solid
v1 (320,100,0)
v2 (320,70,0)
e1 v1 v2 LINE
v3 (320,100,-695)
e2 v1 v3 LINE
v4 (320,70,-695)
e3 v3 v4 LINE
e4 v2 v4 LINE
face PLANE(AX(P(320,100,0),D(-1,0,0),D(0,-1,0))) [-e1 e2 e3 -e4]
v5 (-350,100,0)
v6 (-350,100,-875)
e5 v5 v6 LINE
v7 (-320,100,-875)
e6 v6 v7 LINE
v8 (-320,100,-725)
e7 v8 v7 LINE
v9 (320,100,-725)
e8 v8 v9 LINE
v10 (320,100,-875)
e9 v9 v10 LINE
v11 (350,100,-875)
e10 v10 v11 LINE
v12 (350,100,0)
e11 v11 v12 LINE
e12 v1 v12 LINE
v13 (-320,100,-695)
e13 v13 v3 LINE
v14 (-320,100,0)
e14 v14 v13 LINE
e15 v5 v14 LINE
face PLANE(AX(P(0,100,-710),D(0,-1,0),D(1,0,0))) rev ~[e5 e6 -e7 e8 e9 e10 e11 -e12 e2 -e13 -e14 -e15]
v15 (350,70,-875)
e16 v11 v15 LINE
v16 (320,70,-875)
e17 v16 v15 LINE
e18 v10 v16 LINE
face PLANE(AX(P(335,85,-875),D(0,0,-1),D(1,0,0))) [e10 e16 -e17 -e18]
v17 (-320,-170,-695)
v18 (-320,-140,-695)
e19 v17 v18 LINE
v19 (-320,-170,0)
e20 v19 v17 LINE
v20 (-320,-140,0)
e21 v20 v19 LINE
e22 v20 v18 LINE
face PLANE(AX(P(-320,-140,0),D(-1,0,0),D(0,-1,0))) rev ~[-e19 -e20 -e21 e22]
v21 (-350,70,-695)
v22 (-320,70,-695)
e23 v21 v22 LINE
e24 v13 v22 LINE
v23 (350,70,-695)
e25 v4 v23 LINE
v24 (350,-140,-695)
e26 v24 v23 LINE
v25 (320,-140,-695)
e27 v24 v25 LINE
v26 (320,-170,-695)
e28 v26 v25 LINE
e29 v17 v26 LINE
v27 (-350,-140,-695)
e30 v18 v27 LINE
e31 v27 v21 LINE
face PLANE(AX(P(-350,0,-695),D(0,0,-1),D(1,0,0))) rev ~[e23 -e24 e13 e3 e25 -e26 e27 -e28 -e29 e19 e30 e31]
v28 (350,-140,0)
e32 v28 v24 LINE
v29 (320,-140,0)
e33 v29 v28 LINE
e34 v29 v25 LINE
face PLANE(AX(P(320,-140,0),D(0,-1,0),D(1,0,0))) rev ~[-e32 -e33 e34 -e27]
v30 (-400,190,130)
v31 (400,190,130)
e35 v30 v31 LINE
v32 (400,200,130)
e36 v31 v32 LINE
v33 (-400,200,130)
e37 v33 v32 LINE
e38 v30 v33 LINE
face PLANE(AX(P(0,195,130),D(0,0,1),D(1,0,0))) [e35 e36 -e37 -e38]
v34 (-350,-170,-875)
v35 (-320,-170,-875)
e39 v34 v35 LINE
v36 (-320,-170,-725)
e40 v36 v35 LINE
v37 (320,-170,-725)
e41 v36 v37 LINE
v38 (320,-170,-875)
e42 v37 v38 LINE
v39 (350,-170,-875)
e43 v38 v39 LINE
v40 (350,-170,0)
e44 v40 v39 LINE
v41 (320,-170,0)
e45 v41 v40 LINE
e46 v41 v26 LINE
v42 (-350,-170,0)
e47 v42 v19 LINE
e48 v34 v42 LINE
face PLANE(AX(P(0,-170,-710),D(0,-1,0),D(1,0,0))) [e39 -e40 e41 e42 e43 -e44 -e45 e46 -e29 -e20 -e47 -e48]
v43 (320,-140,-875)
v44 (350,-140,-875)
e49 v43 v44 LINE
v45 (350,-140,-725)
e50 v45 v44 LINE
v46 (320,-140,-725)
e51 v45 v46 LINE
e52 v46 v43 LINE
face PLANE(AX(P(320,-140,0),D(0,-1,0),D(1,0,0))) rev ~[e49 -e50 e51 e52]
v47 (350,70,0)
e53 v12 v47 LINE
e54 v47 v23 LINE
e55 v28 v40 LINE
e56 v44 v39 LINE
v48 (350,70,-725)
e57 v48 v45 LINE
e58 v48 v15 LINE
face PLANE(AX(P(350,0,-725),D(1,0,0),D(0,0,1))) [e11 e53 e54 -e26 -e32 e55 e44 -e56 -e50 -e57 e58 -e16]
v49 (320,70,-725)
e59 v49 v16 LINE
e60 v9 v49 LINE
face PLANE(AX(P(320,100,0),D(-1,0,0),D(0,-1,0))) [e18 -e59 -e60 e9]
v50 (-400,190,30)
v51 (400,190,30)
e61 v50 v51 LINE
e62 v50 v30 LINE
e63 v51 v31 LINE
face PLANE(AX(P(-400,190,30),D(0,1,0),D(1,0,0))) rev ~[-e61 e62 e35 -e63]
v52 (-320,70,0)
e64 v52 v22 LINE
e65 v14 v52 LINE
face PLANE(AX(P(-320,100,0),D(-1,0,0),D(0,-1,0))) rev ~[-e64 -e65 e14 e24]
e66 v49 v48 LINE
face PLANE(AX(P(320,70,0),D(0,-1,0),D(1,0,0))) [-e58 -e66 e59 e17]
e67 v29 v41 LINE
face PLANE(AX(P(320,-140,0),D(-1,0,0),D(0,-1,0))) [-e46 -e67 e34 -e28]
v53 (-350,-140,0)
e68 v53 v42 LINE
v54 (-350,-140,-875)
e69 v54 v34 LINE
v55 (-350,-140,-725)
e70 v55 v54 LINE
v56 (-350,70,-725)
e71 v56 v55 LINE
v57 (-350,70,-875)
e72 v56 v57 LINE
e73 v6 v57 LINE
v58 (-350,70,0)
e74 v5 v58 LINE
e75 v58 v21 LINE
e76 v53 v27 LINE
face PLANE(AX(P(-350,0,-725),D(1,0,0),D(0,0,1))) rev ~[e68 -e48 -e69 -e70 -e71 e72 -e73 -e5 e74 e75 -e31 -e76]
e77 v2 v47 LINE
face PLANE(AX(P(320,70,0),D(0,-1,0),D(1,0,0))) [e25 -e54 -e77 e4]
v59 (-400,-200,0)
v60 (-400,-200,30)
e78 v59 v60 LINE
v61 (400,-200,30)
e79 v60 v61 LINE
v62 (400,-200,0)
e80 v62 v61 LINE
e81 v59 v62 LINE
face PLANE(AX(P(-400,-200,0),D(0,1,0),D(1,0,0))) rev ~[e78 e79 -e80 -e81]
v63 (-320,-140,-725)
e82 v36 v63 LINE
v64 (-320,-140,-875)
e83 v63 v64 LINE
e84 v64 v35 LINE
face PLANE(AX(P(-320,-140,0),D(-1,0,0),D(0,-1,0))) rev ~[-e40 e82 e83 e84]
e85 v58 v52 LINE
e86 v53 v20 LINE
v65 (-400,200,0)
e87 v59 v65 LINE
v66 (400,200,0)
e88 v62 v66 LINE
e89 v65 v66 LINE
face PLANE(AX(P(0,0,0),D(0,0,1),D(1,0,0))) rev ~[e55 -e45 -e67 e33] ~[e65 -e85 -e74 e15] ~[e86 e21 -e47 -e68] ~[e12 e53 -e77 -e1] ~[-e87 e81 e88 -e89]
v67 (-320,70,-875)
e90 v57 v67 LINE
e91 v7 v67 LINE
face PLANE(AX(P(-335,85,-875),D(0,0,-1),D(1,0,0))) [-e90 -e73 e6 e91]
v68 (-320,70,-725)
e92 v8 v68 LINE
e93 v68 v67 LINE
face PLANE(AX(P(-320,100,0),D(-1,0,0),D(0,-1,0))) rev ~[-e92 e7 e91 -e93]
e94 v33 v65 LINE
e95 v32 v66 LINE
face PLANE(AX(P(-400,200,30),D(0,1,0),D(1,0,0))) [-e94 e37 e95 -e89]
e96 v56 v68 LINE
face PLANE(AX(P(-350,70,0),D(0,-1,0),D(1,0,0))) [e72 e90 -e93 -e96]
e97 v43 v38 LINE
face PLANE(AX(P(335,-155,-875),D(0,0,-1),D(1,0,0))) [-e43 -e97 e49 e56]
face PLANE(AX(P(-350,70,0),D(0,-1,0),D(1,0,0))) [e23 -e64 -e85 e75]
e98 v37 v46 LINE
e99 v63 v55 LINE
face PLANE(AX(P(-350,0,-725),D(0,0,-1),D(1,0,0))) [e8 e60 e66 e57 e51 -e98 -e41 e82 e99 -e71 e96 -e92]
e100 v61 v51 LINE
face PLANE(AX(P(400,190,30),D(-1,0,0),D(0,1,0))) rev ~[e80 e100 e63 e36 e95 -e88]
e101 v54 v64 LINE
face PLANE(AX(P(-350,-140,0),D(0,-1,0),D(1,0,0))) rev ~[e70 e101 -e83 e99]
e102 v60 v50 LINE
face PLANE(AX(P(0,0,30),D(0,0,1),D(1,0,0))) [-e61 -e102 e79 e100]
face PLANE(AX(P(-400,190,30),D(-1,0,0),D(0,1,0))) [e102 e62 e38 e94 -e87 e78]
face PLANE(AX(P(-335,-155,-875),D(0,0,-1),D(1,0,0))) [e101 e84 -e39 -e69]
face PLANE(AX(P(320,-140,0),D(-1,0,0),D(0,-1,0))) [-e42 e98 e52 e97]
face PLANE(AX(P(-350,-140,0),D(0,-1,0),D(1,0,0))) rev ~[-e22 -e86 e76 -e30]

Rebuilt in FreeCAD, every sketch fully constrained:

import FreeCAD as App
import Part
import Sketcher

doc = App.newDocument("Part")
params = doc.addObject("Spreadsheet::Sheet", "Params")
for row, (alias, value) in enumerate([
    ("sketch1_width", "800 mm"),
    ("sketch1_height", "400 mm"),
    ("pad1_length", "30 mm"),
    ("sketch2_width", "800 mm"),
    ("sketch2_height", "10 mm"),
    ("pad2_length", "100 mm"),
    ("sketch3_width", "30 mm"),
    ("pad3_length", "875 mm"),
    ("sketch4_width", "700 mm"),
    ("sketch4_height", "30 mm"),
    ("pad4_length", "170 mm"),
    ("pad4_length2", "100 mm"),
], start=1):
    params.set(f"A{row}", alias)
    params.set(f"B{row}", "=" + value)
    params.setAlias(f"B{row}", alias)

body = doc.addObject("PartDesign::Body", "Body")

sketch1 = doc.addObject("Sketcher::SketchObject", "Sketch")
body.addObject(sketch1)
sketch1.AttachmentSupport = (doc.XY_Plane, [""])
sketch1.MapMode = "FlatFace"
sketch1.addGeometry([
    Part.LineSegment(App.Vector(-400, 200, 0), App.Vector(-400, -200, 0)),
    Part.LineSegment(App.Vector(-400, -200, 0), App.Vector(400, -200, 0)),
    Part.LineSegment(App.Vector(400, -200, 0), App.Vector(400, 200, 0)),
    Part.LineSegment(App.Vector(400, 200, 0), App.Vector(-400, 200, 0)),
], False)
sketch1.addConstraint([
    Sketcher.Constraint("Coincident", 0, 2, 1, 1),
    Sketcher.Constraint("Coincident", 1, 2, 2, 1),
    Sketcher.Constraint("Coincident", 2, 2, 3, 1),
    Sketcher.Constraint("Coincident", 3, 2, 0, 1),
    Sketcher.Constraint("Vertical", 0),
    Sketcher.Constraint("Horizontal", 1),
    Sketcher.Constraint("Vertical", 2),
    Sketcher.Constraint("Horizontal", 3),
    Sketcher.Constraint("Symmetric", 0, 2, 2, 2, -1, 1),
    Sketcher.Constraint("DistanceX", 1, 1, 1, 2, 800.0),
    Sketcher.Constraint("DistanceY", 0, 2, 0, 1, 400.0),
])
sketch1.setExpression("Constraints[9]", "Params.sketch1_width")
sketch1.setExpression("Constraints[10]", "Params.sketch1_height")
pad1 = doc.addObject("PartDesign::Pad", "Pad")
body.addObject(pad1)
pad1.Profile = sketch1
pad1.setExpression("Length", "Params.pad1_length")

sketch2 = doc.addObject("Sketcher::SketchObject", "Sketch001")
body.addObject(sketch2)
sketch2.AttachmentSupport = (doc.XY_Plane, [""])
sketch2.MapMode = "FlatFace"
sketch2.AttachmentOffset = App.Placement(App.Vector(0, 0, 30), App.Rotation())
sketch2.addGeometry([
    Part.LineSegment(App.Vector(-400, 200, 0), App.Vector(-400, 190, 0)),
    Part.LineSegment(App.Vector(-400, 190, 0), App.Vector(400, 190, 0)),
    Part.LineSegment(App.Vector(400, 190, 0), App.Vector(400, 200, 0)),
    Part.LineSegment(App.Vector(400, 200, 0), App.Vector(-400, 200, 0)),
], False)
sketch2.addConstraint([
    Sketcher.Constraint("Coincident", 0, 2, 1, 1),
    Sketcher.Constraint("Coincident", 1, 2, 2, 1),
    Sketcher.Constraint("Coincident", 2, 2, 3, 1),
    Sketcher.Constraint("Coincident", 3, 2, 0, 1),
    Sketcher.Constraint("Vertical", 0),
    Sketcher.Constraint("Horizontal", 1),
    Sketcher.Constraint("Vertical", 2),
    Sketcher.Constraint("Horizontal", 3),
    Sketcher.Constraint("DistanceX", 1, 1, 1, 2, 800.0),
    Sketcher.Constraint("DistanceY", 0, 2, 0, 1, 10.0),
    Sketcher.Constraint("DistanceX", 0, 2, -1, 1, 400.0),
    Sketcher.Constraint("DistanceY", -1, 1, 0, 2, 190.0),
])
sketch2.setExpression("Constraints[8]", "Params.sketch2_width")
sketch2.setExpression("Constraints[9]", "Params.sketch2_height")
pad2 = doc.addObject("PartDesign::Pad", "Pad001")
body.addObject(pad2)
pad2.Profile = sketch2
pad2.setExpression("Length", "Params.pad2_length")

sketch3 = doc.addObject("Sketcher::SketchObject", "Sketch002")
body.addObject(sketch3)
sketch3.AttachmentSupport = (doc.XY_Plane, [""])
sketch3.MapMode = "FlatFace"
sketch3.addGeometry([
    Part.LineSegment(App.Vector(320, -170, 0), App.Vector(320, -140, 0)),
    Part.LineSegment(App.Vector(320, -140, 0), App.Vector(350, -140, 0)),
    Part.LineSegment(App.Vector(350, -140, 0), App.Vector(350, -170, 0)),
    Part.LineSegment(App.Vector(350, -170, 0), App.Vector(320, -170, 0)),
    Part.LineSegment(App.Vector(320, 70, 0), App.Vector(320, 100, 0)),
    Part.LineSegment(App.Vector(320, 100, 0), App.Vector(350, 100, 0)),
    Part.LineSegment(App.Vector(350, 100, 0), App.Vector(350, 70, 0)),
    Part.LineSegment(App.Vector(350, 70, 0), App.Vector(320, 70, 0)),
    Part.LineSegment(App.Vector(-350, -170, 0), App.Vector(-350, -140, 0)),
    Part.LineSegment(App.Vector(-350, -140, 0), App.Vector(-320, -140, 0)),
    Part.LineSegment(App.Vector(-320, -140, 0), App.Vector(-320, -170, 0)),
    Part.LineSegment(App.Vector(-320, -170, 0), App.Vector(-350, -170, 0)),
    Part.LineSegment(App.Vector(-350, 70, 0), App.Vector(-350, 100, 0)),
    Part.LineSegment(App.Vector(-350, 100, 0), App.Vector(-320, 100, 0)),
    Part.LineSegment(App.Vector(-320, 100, 0), App.Vector(-320, 70, 0)),
    Part.LineSegment(App.Vector(-320, 70, 0), App.Vector(-350, 70, 0)),
], False)
sketch3.addConstraint([
    Sketcher.Constraint("Coincident", 0, 2, 1, 1),
    Sketcher.Constraint("Coincident", 1, 2, 2, 1),
    Sketcher.Constraint("Coincident", 2, 2, 3, 1),
    Sketcher.Constraint("Coincident", 3, 2, 0, 1),
    Sketcher.Constraint("Coincident", 4, 2, 5, 1),
    Sketcher.Constraint("Coincident", 5, 2, 6, 1),
    Sketcher.Constraint("Coincident", 6, 2, 7, 1),
    Sketcher.Constraint("Coincident", 7, 2, 4, 1),
    Sketcher.Constraint("Coincident", 8, 2, 9, 1),
    Sketcher.Constraint("Coincident", 9, 2, 10, 1),
    Sketcher.Constraint("Coincident", 10, 2, 11, 1),
    Sketcher.Constraint("Coincident", 11, 2, 8, 1),
    Sketcher.Constraint("Coincident", 12, 2, 13, 1),
    Sketcher.Constraint("Coincident", 13, 2, 14, 1),
    Sketcher.Constraint("Coincident", 14, 2, 15, 1),
    Sketcher.Constraint("Coincident", 15, 2, 12, 1),
    Sketcher.Constraint("Vertical", 0),
    Sketcher.Constraint("Horizontal", 1),
    Sketcher.Constraint("Vertical", 2),
    Sketcher.Constraint("Horizontal", 3),
    Sketcher.Constraint("Vertical", 4),
    Sketcher.Constraint("Horizontal", 5),
    Sketcher.Constraint("Vertical", 6),
    Sketcher.Constraint("Horizontal", 7),
    Sketcher.Constraint("Vertical", 8),
    Sketcher.Constraint("Horizontal", 9),
    Sketcher.Constraint("Vertical", 10),
    Sketcher.Constraint("Horizontal", 11),
    Sketcher.Constraint("Vertical", 12),
    Sketcher.Constraint("Horizontal", 13),
    Sketcher.Constraint("Vertical", 14),
    Sketcher.Constraint("Horizontal", 15),
    Sketcher.Constraint("Symmetric", 1, 2, 8, 2, -2),
    Sketcher.Constraint("Symmetric", 3, 2, 10, 2, -2),
    Sketcher.Constraint("Symmetric", 5, 2, 12, 2, -2),
    Sketcher.Constraint("Symmetric", 7, 2, 14, 2, -2),
    Sketcher.Constraint("Vertical", 3, 2, 4, 2),
    Sketcher.Constraint("Vertical", 2, 2, 5, 2),
    Sketcher.Constraint("Equal", 15, 0),
    Sketcher.Constraint("Equal", 2, 4),
    Sketcher.Constraint("DistanceX", 1, 1, 1, 2, 30.0),
    Sketcher.Constraint("DistanceX", -1, 1, 0, 2, 320.0),
    Sketcher.Constraint("DistanceY", 0, 2, -1, 1, 140.0),
    Sketcher.Constraint("DistanceY", -1, 1, 4, 2, 100.0),
])
sketch3.setExpression("Constraints[40]", "Params.sketch3_width")
pad3 = doc.addObject("PartDesign::Pad", "Pad002")
body.addObject(pad3)
pad3.Profile = sketch3
pad3.setExpression("Length", "Params.pad3_length")
pad3.Reversed = True

sketch4 = doc.addObject("Sketcher::SketchObject", "Sketch003")
body.addObject(sketch4)
sketch4.AttachmentSupport = (doc.XZ_Plane, [""])
sketch4.MapMode = "FlatFace"
sketch4.addGeometry([
    Part.LineSegment(App.Vector(-350, -695, 0), App.Vector(-350, -725, 0)),
    Part.LineSegment(App.Vector(-350, -725, 0), App.Vector(350, -725, 0)),
    Part.LineSegment(App.Vector(350, -725, 0), App.Vector(350, -695, 0)),
    Part.LineSegment(App.Vector(350, -695, 0), App.Vector(-350, -695, 0)),
], False)
sketch4.addConstraint([
    Sketcher.Constraint("Coincident", 0, 2, 1, 1),
    Sketcher.Constraint("Coincident", 1, 2, 2, 1),
    Sketcher.Constraint("Coincident", 2, 2, 3, 1),
    Sketcher.Constraint("Coincident", 3, 2, 0, 1),
    Sketcher.Constraint("Vertical", 0),
    Sketcher.Constraint("Horizontal", 1),
    Sketcher.Constraint("Vertical", 2),
    Sketcher.Constraint("Horizontal", 3),
    Sketcher.Constraint("DistanceX", 1, 1, 1, 2, 700.0),
    Sketcher.Constraint("DistanceY", 0, 2, 0, 1, 30.0),
    Sketcher.Constraint("DistanceX", 0, 2, -1, 1, 350.0),
    Sketcher.Constraint("DistanceY", 0, 2, -1, 1, 725.0),
])
sketch4.setExpression("Constraints[8]", "Params.sketch4_width")
sketch4.setExpression("Constraints[9]", "Params.sketch4_height")
pad4 = doc.addObject("PartDesign::Pad", "Pad003")
body.addObject(pad4)
pad4.Profile = sketch4
pad4.Type = "TwoLengths"
pad4.setExpression("Length", "Params.pad4_length")
pad4.setExpression("Length2", "Params.pad4_length2")

doc.recompute()
